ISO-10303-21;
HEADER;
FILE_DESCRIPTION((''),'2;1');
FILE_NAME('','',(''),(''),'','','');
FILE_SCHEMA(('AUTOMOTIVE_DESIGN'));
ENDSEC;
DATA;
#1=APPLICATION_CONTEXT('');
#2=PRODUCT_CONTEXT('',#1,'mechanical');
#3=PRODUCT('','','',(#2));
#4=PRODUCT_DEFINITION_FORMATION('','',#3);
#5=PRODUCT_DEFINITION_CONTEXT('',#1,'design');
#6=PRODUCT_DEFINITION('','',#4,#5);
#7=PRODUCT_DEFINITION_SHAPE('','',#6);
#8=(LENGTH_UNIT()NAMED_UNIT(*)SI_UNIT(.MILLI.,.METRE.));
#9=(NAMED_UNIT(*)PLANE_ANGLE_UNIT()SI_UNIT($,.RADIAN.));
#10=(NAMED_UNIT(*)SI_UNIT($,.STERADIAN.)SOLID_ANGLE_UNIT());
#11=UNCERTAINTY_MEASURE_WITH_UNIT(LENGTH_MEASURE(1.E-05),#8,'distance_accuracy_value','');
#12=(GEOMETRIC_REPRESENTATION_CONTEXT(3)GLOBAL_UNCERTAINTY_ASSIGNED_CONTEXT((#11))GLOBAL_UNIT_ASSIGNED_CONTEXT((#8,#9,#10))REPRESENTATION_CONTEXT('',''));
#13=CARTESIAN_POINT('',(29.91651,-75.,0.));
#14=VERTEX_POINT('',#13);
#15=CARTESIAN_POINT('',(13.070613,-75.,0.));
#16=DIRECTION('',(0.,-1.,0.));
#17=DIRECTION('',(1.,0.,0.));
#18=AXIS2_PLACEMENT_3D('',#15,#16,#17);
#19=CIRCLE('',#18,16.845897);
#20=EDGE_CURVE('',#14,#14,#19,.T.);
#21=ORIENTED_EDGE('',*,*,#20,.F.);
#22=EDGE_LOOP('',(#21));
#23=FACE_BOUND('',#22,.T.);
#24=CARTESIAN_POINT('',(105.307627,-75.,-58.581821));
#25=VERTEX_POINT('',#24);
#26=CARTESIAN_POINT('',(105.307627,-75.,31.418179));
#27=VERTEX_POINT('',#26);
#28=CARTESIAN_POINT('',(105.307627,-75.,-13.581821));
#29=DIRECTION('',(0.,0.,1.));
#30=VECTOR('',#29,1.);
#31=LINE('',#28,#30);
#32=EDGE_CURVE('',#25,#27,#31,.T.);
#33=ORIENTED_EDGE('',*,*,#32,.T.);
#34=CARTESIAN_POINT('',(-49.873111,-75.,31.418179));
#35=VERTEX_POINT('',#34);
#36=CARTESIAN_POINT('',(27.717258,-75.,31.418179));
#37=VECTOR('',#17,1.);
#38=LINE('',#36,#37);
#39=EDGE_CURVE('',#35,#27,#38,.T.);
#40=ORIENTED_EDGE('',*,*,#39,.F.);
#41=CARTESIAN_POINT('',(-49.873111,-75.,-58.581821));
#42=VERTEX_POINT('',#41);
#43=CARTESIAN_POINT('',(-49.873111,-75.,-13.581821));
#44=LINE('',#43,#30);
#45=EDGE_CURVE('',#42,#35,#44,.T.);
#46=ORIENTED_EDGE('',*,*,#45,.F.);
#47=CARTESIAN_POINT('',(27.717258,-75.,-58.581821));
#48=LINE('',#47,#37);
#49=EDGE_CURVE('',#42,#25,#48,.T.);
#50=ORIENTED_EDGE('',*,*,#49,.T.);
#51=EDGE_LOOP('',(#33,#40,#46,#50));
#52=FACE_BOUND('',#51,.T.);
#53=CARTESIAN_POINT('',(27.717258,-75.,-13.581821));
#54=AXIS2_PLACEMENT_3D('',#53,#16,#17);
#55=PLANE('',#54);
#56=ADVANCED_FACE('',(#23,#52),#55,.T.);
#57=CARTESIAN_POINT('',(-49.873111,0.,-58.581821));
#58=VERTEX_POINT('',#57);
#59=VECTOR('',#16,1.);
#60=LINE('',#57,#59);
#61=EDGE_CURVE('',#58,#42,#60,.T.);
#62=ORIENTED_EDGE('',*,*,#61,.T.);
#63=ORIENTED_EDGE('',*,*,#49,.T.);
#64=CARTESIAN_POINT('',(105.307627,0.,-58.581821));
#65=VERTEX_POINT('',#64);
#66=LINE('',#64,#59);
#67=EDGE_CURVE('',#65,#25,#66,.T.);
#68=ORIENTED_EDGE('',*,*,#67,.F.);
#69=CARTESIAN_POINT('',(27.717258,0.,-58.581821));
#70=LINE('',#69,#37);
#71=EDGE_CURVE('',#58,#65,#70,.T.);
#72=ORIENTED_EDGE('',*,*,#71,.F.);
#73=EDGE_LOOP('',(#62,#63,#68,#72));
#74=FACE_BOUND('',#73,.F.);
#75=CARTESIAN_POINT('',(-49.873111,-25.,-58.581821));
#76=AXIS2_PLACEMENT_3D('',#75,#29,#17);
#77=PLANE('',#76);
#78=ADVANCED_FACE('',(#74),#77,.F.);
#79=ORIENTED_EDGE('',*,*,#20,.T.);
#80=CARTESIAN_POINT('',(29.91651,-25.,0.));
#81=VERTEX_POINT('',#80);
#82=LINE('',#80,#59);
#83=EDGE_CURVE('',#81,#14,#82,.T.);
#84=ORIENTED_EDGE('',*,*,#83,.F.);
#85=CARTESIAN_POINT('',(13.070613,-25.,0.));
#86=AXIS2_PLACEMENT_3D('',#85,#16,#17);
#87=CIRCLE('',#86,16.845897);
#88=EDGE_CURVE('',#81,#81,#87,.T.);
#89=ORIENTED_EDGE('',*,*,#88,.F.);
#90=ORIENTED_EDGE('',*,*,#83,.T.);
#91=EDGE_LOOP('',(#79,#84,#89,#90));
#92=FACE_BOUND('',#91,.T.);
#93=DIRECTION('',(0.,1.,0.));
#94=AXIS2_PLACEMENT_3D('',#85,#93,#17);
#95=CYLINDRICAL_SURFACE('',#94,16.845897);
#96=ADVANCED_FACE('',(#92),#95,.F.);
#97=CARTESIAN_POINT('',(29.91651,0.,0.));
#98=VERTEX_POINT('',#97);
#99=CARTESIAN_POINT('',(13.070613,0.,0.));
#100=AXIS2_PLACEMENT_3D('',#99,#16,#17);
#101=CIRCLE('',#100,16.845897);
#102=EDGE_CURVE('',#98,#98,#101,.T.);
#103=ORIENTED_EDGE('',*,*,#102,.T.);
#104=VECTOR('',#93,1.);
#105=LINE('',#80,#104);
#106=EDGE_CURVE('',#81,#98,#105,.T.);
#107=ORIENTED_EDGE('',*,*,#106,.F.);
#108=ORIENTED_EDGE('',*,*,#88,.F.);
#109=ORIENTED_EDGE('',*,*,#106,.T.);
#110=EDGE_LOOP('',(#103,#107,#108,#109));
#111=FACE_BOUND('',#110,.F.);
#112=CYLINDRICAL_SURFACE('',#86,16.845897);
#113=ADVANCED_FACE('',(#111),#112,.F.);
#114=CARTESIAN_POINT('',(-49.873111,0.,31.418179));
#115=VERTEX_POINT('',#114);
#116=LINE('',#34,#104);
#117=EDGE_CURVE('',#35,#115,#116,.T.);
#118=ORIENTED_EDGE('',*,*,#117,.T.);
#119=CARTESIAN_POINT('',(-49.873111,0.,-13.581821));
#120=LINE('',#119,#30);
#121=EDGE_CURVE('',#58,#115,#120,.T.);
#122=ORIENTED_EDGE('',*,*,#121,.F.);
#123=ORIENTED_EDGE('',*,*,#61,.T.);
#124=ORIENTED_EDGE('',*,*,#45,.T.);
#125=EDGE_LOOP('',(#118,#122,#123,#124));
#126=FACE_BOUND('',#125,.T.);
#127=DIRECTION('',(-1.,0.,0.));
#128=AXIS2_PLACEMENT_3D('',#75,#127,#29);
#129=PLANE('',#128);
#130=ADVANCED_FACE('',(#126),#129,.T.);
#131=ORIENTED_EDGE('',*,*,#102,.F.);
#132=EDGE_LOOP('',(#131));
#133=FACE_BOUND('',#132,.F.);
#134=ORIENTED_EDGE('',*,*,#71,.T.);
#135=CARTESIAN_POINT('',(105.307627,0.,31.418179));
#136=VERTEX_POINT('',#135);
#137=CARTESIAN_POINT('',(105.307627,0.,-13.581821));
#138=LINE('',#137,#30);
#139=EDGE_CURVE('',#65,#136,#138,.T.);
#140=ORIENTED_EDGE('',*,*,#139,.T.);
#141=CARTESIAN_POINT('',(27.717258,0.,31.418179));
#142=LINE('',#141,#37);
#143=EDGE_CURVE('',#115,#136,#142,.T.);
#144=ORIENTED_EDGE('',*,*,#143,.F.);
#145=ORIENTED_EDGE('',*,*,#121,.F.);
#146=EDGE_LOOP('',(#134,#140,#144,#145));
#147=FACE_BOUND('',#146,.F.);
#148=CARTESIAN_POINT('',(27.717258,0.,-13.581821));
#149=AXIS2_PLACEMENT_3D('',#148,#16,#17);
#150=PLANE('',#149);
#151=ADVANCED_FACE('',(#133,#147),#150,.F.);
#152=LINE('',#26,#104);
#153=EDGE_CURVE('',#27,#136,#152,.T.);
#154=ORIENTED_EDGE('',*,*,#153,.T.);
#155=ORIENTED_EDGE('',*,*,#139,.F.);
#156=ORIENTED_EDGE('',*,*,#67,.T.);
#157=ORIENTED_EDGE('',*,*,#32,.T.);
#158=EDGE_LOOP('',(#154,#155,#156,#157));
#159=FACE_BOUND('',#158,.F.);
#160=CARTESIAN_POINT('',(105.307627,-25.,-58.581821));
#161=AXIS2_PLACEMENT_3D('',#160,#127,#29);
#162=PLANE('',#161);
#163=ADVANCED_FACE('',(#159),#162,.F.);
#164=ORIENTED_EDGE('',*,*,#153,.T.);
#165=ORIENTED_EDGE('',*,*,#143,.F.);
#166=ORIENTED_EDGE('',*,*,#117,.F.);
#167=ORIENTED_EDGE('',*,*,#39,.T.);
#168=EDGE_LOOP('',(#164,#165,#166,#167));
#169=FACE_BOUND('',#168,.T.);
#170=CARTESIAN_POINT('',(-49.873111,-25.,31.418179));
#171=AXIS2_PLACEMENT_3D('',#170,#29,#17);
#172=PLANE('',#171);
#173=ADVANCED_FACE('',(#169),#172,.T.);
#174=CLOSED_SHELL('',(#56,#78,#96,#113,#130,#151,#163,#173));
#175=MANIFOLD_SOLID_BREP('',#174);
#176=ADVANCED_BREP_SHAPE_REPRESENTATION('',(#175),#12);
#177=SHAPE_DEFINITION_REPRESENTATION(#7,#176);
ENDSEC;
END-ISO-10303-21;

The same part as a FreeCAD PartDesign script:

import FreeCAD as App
import Part
import Sketcher
from FreeCAD import Vector
Q = App.Units.Quantity

doc = App.newDocument("Part")
params = doc.addObject("Spreadsheet::Sheet", "Params")
for row, (alias, value) in enumerate([
    ("sketch1_height", "90 mm"),
    ("pad1_length", "25 mm"),
    ("sketch3_height", "90 mm"),
    ("pad2_length", "50 mm"),
], start=1):
    params.set(f"A{row}", alias)
    params.set(f"B{row}", "=" + value)
    params.setAlias(f"B{row}", alias)

body = doc.addObject("PartDesign::Body", "Body")

sketch1 = doc.addObject("Sketcher::SketchObject", "Sketch")
body.addObject(sketch1)
sketch1.AttachmentSupport = (doc.XZ_Plane, [""])
sketch1.MapMode = "FlatFace"
sketch1.addGeometry([
    Part.LineSegment(Vector(-49.873111, 31.418179, 0), Vector(-49.873111, -58.581821, 0)),
    Part.LineSegment(Vector(-49.873111, -58.581821, 0), Vector(105.307627, -58.581821, 0)),
    Part.LineSegment(Vector(105.307627, -58.581821, 0), Vector(105.307627, 31.418179, 0)),
    Part.LineSegment(Vector(105.307627, 31.418179, 0), Vector(-49.873111, 31.418179, 0)),
], False)
sketch1.addConstraint([
    Sketcher.Constraint("Coincident", 0, 2, 1, 1),
    Sketcher.Constraint("Coincident", 1, 2, 2, 1),
    Sketcher.Constraint("Coincident", 2, 2, 3, 1),
    Sketcher.Constraint("Coincident", 3, 2, 0, 1),
    Sketcher.Constraint("Vertical", 0),
    Sketcher.Constraint("Horizontal", 1),
    Sketcher.Constraint("Vertical", 2),
    Sketcher.Constraint("Horizontal", 3),
    Sketcher.Constraint("DistanceY", 0, 2, 0, 1, Q("90 mm")),
    Sketcher.Constraint("DistanceX", 1, 1, 1, 2, Q("155.180738 mm")),
    Sketcher.Constraint("DistanceX", 0, 2, -1, 1, Q("49.873111 mm")),
    Sketcher.Constraint("DistanceY", 0, 2, -1, 1, Q("58.581821 mm")),
])
sketch1.setExpression("Constraints[8]", "Params.sketch1_height")
pad1 = doc.addObject("PartDesign::Pad", "Pad")
body.addObject(pad1)
pad1.Profile = sketch1
pad1.setExpression("Length", "Params.pad1_length")

sketch2 = doc.addObject("Sketcher::SketchObject", "Sketch001")
body.addObject(sketch2)
sketch2.AttachmentSupport = (doc.XZ_Plane, [""])
sketch2.MapMode = "FlatFace"
sketch2.AttachmentOffset = App.Placement(Vector(0, 0, 25), App.Rotation())
sketch2.addGeometry(Part.Circle(Vector(13.070613, 0, 0), Vector(0, 0, 1), 16.845897), False)
sketch2.addConstraint([
    Sketcher.Constraint("PointOnObject", 0, 3, -1),
    Sketcher.Constraint("Diameter", 0, Q("33.691794 mm")),
    Sketcher.Constraint("DistanceX", -1, 1, 0, 3, Q("13.070613 mm")),
])
pocket1 = doc.addObject("PartDesign::Pocket", "Pocket")
body.addObject(pocket1)
pocket1.Profile = sketch2
pocket1.Type = "ThroughAll"

sketch3 = doc.addObject("Sketcher::SketchObject", "Sketch002")
body.addObject(sketch3)
sketch3.AttachmentSupport = (doc.XZ_Plane, [""])
sketch3.MapMode = "FlatFace"
sketch3.AttachmentOffset = App.Placement(Vector(0, 0, 25), App.Rotation())
sketch3.addGeometry([
    Part.LineSegment(Vector(-49.873111, 31.418179, 0), Vector(-49.873111, -58.581821, 0)),
    Part.LineSegment(Vector(-49.873111, -58.581821, 0), Vector(105.307627, -58.581821, 0)),
    Part.LineSegment(Vector(105.307627, -58.581821, 0), Vector(105.307627, 31.418179, 0)),
    Part.LineSegment(Vector(105.307627, 31.418179, 0), Vector(-49.873111, 31.418179, 0)),
    Part.Circle(Vector(13.070613, 0, 0), Vector(0, 0, 1), 16.845897),
], False)
sketch3.addConstraint([
    Sketcher.Constraint("Coincident", 0, 2, 1, 1),
    Sketcher.Constraint("Coincident", 1, 2, 2, 1),
    Sketcher.Constraint("Coincident", 2, 2, 3, 1),
    Sketcher.Constraint("Coincident", 3, 2, 0, 1),
    Sketcher.Constraint("Vertical", 0),
    Sketcher.Constraint("Horizontal", 1),
    Sketcher.Constraint("Vertical", 2),
    Sketcher.Constraint("Horizontal", 3),
    Sketcher.Constraint("PointOnObject", 4, 3, -1),
    Sketcher.Constraint("DistanceY", 0, 2, 0, 1, Q("90 mm")),
    Sketcher.Constraint("Diameter", 4, Q("33.691794 mm")),
    Sketcher.Constraint("DistanceX", 1, 1, 1, 2, Q("155.180738 mm")),
    Sketcher.Constraint("DistanceX", 0, 2, -1, 1, Q("49.873111 mm")),
    Sketcher.Constraint("DistanceY", 0, 2, -1, 1, Q("58.581821 mm")),
    Sketcher.Constraint("DistanceX", -1, 1, 4, 3, Q("13.070613 mm")),
])
sketch3.setExpression("Constraints[9]", "Params.sketch3_height")
pad2 = doc.addObject("PartDesign::Pad", "Pad001")
body.addObject(pad2)
pad2.Profile = sketch3
pad2.setExpression("Length", "Params.pad2_length")

doc.recompute()
